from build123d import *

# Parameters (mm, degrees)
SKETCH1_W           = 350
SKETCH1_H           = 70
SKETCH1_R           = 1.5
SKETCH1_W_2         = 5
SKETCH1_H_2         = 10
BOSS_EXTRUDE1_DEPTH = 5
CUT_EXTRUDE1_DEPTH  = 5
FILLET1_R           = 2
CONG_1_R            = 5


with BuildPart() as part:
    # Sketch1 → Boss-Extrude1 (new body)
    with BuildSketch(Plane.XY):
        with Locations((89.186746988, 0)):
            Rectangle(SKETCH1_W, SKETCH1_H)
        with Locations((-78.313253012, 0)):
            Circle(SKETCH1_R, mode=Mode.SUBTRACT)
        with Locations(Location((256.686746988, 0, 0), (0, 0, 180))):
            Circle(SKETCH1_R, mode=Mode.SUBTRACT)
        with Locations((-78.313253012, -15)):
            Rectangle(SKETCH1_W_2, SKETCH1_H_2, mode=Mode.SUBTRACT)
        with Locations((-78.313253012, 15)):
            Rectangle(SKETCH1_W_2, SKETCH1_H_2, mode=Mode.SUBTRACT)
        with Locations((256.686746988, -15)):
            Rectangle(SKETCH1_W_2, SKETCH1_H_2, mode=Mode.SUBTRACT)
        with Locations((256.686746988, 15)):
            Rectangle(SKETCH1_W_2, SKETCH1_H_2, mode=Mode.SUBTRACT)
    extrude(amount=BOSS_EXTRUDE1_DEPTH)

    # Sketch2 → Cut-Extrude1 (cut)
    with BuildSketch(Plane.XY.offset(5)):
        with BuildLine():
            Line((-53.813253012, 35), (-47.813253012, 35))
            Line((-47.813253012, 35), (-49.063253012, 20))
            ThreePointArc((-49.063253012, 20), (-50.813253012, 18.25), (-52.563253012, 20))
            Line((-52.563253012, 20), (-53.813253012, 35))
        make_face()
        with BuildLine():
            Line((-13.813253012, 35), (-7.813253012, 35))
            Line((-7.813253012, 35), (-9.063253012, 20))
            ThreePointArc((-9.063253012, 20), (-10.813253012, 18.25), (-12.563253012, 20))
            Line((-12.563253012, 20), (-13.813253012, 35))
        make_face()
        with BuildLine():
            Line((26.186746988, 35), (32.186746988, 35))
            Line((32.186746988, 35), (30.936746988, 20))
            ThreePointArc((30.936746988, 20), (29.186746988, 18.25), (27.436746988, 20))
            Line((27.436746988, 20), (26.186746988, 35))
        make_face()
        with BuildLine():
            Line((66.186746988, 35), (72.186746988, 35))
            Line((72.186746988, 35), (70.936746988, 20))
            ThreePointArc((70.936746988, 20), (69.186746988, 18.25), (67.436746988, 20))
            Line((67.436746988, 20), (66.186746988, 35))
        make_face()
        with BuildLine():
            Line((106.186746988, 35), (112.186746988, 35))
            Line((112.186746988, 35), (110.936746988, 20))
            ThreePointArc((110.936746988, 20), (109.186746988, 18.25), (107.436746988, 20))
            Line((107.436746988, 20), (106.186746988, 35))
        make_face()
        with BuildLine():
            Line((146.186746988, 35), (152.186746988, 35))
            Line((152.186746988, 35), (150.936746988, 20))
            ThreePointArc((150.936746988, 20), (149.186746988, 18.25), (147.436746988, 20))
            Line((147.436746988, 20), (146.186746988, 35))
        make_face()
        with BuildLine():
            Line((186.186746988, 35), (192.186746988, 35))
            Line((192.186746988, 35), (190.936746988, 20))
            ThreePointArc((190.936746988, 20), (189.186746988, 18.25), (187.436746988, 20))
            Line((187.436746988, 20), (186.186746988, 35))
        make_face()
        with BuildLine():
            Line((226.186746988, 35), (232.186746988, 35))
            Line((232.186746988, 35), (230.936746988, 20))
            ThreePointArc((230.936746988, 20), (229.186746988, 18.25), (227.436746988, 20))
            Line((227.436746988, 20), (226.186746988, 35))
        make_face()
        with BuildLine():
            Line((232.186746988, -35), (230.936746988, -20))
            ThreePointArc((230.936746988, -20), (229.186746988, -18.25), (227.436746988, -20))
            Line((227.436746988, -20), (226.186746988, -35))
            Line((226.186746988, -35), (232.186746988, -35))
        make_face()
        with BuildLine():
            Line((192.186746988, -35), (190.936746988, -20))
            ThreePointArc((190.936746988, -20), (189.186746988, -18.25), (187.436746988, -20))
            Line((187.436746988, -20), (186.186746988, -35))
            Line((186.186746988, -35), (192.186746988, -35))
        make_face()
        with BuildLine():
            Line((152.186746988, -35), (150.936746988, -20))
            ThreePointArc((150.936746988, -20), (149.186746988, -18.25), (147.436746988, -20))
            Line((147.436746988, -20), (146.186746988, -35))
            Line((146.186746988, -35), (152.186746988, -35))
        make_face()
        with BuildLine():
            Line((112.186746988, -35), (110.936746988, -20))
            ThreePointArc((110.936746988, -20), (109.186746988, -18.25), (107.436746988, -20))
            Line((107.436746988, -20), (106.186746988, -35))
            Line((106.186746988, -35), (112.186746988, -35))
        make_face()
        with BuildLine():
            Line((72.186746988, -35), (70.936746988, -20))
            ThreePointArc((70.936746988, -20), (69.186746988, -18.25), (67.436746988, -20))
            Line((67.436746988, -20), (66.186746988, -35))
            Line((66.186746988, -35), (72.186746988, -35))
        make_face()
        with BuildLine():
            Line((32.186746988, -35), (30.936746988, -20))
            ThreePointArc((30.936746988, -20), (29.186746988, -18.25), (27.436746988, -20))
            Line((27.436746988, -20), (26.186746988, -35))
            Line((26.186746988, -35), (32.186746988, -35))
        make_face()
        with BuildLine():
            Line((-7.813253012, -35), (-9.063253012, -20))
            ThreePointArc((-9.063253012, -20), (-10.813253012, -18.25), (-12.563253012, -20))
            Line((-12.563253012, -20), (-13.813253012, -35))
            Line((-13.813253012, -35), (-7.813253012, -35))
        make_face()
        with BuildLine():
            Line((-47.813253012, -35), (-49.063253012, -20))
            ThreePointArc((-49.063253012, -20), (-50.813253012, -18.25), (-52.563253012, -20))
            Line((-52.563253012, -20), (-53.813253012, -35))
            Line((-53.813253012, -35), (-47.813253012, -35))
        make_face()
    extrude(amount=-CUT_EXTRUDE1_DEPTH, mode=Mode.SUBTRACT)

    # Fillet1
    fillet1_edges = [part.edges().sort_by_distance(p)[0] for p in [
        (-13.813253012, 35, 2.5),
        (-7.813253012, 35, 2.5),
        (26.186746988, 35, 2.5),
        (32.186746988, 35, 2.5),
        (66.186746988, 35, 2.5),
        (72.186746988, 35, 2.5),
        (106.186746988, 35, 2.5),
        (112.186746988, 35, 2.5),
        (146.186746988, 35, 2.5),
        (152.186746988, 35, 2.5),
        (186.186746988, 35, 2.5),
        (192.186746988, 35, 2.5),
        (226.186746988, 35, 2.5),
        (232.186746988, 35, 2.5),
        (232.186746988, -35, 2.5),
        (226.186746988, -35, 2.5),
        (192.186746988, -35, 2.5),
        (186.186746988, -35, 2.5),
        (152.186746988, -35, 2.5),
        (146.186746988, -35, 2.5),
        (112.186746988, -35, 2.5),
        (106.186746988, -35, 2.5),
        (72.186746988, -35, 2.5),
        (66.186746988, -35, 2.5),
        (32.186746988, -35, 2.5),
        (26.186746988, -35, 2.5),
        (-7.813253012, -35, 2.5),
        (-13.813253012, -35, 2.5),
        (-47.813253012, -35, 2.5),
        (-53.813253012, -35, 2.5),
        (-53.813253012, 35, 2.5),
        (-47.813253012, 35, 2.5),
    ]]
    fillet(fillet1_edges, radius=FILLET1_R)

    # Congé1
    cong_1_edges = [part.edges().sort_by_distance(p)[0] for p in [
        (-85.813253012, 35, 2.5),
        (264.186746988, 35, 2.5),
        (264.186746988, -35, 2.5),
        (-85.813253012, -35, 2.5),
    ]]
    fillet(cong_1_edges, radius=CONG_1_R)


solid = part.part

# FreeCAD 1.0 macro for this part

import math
import FreeCAD as App
import Part
import Sketcher

V = App.Vector
Q = App.Units.Quantity


def edges_at(feature, points):
    """Names of the edges that pass closest to the given points."""
    edges = feature.Shape.Edges
    near = lambda p: min(range(len(edges)), key=lambda i: edges[i].distToShape(Part.Vertex(*p))[0])
    return sorted({f"Edge{near(p) + 1}" for p in points})

doc = App.newDocument("Part")
body = doc.addObject("PartDesign::Body", "Body")

# Sketch on XY plane
sketch1 = body.newObject("Sketcher::SketchObject", "Sketch")
sketch1.AttachmentSupport = (doc.getObject("XY_Plane"), [""])
sketch1.MapMode = "FlatFace"
sketch1.addGeometry([
    Part.LineSegment(V(-85.8, 35, 0), V(-85.8, -35, 0)),  # 0
    Part.LineSegment(V(-85.8, -35, 0), V(264.2, -35, 0)),  # 1
    Part.LineSegment(V(264.2, -35, 0), V(264.2, 35, 0)),  # 2
    Part.LineSegment(V(264.2, 35, 0), V(-85.8, 35, 0)),  # 3
    Part.LineSegment(V(-75.8, -20, 0), V(-80.8, -20, 0)),  # 4
    Part.LineSegment(V(-80.8, -20, 0), V(-80.8, -10, 0)),  # 5
    Part.LineSegment(V(-80.8, -10, 0), V(-75.8, -10, 0)),  # 6
    Part.LineSegment(V(-75.8, -10, 0), V(-75.8, -20, 0)),  # 7
    Part.LineSegment(V(259.2, -20, 0), V(254.2, -20, 0)),  # 8
    Part.LineSegment(V(254.2, -20, 0), V(254.2, -10, 0)),  # 9
    Part.LineSegment(V(254.2, -10, 0), V(259.2, -10, 0)),  # 10
    Part.LineSegment(V(259.2, -10, 0), V(259.2, -20, 0)),  # 11
    Part.Circle(V(-78.3, 0, 0), V(0, 0, 1), 1.5),  # 12
    Part.LineSegment(V(-75.8, 10, 0), V(-80.8, 10, 0)),  # 13
    Part.LineSegment(V(-80.8, 10, 0), V(-80.8, 20, 0)),  # 14
    Part.LineSegment(V(-80.8, 20, 0), V(-75.8, 20, 0)),  # 15
    Part.LineSegment(V(-75.8, 20, 0), V(-75.8, 10, 0)),  # 16
    Part.Circle(V(256.7, 0, 0), V(0, 0, 1), 1.5),  # 17
    Part.LineSegment(V(259.2, 10, 0), V(254.2, 10, 0)),  # 18
    Part.LineSegment(V(254.2, 10, 0), V(254.2, 20, 0)),  # 19
    Part.LineSegment(V(254.2, 20, 0), V(259.2, 20, 0)),  # 20
    Part.LineSegment(V(259.2, 20, 0), V(259.2, 10, 0)),  # 21
], False)
sketch1.addConstraint([
    Sketcher.Constraint("Coincident", 0, 2, 1, 1),
    Sketcher.Constraint("Coincident", 1, 2, 2, 1),
    Sketcher.Constraint("Coincident", 2, 2, 3, 1),
    Sketcher.Constraint("Coincident", 3, 2, 0, 1),
    Sketcher.Constraint("Coincident", 4, 2, 5, 1),
    Sketcher.Constraint("Coincident", 5, 2, 6, 1),
    Sketcher.Constraint("Coincident", 6, 2, 7, 1),
    Sketcher.Constraint("Coincident", 7, 2, 4, 1),
    Sketcher.Constraint("Coincident", 8, 2, 9, 1),
    Sketcher.Constraint("Coincident", 9, 2, 10, 1),
    Sketcher.Constraint("Coincident", 10, 2, 11, 1),
    Sketcher.Constraint("Coincident", 11, 2, 8, 1),
    Sketcher.Constraint("Coincident", 13, 2, 14, 1),
    Sketcher.Constraint("Coincident", 14, 2, 15, 1),
    Sketcher.Constraint("Coincident", 15, 2, 16, 1),
    Sketcher.Constraint("Coincident", 16, 2, 13, 1),
    Sketcher.Constraint("Coincident", 18, 2, 19, 1),
    Sketcher.Constraint("Coincident", 19, 2, 20, 1),
    Sketcher.Constraint("Coincident", 20, 2, 21, 1),
    Sketcher.Constraint("Coincident", 21, 2, 18, 1),
    Sketcher.Constraint("Vertical", 0),
    Sketcher.Constraint("Horizontal", 1),
    Sketcher.Constraint("Vertical", 2),
    Sketcher.Constraint("Horizontal", 3),
    Sketcher.Constraint("Horizontal", 4),
    Sketcher.Constraint("Vertical", 5),
    Sketcher.Constraint("Horizontal", 6),
    Sketcher.Constraint("Vertical", 7),
    Sketcher.Constraint("Horizontal", 8),
    Sketcher.Constraint("Vertical", 9),
    Sketcher.Constraint("Horizontal", 10),
    Sketcher.Constraint("Vertical", 11),
    Sketcher.Constraint("Horizontal", 13),
    Sketcher.Constraint("Vertical", 14),
    Sketcher.Constraint("Horizontal", 15),
    Sketcher.Constraint("Vertical", 16),
    Sketcher.Constraint("Horizontal", 18),
    Sketcher.Constraint("Vertical", 19),
    Sketcher.Constraint("Horizontal", 20),
    Sketcher.Constraint("Vertical", 21),
    Sketcher.Constraint("Equal", 12, 17),
    Sketcher.Constraint("Symmetric", 5, 2, 13, 2, -1),
    Sketcher.Constraint("Symmetric", 7, 2, 15, 2, -1),
    Sketcher.Constraint("Symmetric", 9, 2, 18, 2, -1),
    Sketcher.Constraint("Symmetric", 11, 2, 20, 2, -1),
    Sketcher.Constraint("PointOnObject", 12, 3, -1),
    Sketcher.Constraint("PointOnObject", 17, 3, -1),
    Sketcher.Constraint("Horizontal", 7, 2, 8, 2),
    Sketcher.Constraint("Horizontal", 6, 2, 9, 2),
    Sketcher.Constraint("Equal", 6, 8),
    Sketcher.Constraint("Diameter", 12, Q("3 mm")),
    Sketcher.Constraint("DistanceX", 1, 1, 1, 2, Q("350 mm")),
    Sketcher.Constraint("DistanceX", 4, 2, 4, 1, Q("5 mm")),
    Sketcher.Constraint("DistanceY", 0, 2, 0, 1, Q("70 mm")),
    Sketcher.Constraint("DistanceY", 5, 1, 5, 2, Q("10 mm")),
    Sketcher.Constraint("DistanceY", 0, 2, -1, 1, Q("35 mm")),
    Sketcher.Constraint("DistanceY", 4, 2, -1, 1, Q("20 mm")),
    Sketcher.Constraint("DistanceX", 12, 3, 17, 3, Q("335 mm")),
    Sketcher.Constraint("DistanceX", 0, 2, 4, 2, Q("5 mm")),
    Sketcher.Constraint("DistanceX", 8, 2, 1, 2, Q("10 mm")),
    Sketcher.Constraint("DistanceX", 0, 2, 12, 3, Q("7.5 mm")),
    Sketcher.Constraint("DistanceX", 12, 3, -1, 1, Q("78.313253 mm")),
])
pad1 = body.newObject("PartDesign::Pad", "Pad")
pad1.Profile = sketch1
pad1.Length = 5

# Sketch on XY plane
sketch2 = body.newObject("Sketcher::SketchObject", "Sketch001")
sketch2.AttachmentSupport = (doc.getObject("XY_Plane"), [""])
sketch2.MapMode = "FlatFace"
sketch2.AttachmentOffset = App.Placement(V(0, 0, 5), App.Rotation())
sketch2.addGeometry([
    Part.LineSegment(V(-47.8, 35, 0), V(-53.8, 35, 0)),  # 0
    Part.LineSegment(V(-53.8, 35, 0), V(-52.6, 20, 0)),  # 1
    Part.ArcOfCircle(Part.Circle(V(-50.8, 20, 0), V(0, 0, 1), 1.8), math.radians(180), math.radians(360)),  # 2
    Part.LineSegment(V(-49.1, 20, 0), V(-47.8, 35, 0)),  # 3
    Part.LineSegment(V(-7.8, 35, 0), V(-13.8, 35, 0)),  # 4
    Part.LineSegment(V(-13.8, 35, 0), V(-12.6, 20, 0)),  # 5
    Part.ArcOfCircle(Part.Circle(V(-10.8, 20, 0), V(0, 0, 1), 1.8), math.radians(180), math.radians(360)),  # 6
    Part.LineSegment(V(-9.1, 20, 0), V(-7.8, 35, 0)),  # 7
    Part.LineSegment(V(32.2, 35, 0), V(26.2, 35, 0)),  # 8
    Part.LineSegment(V(26.2, 35, 0), V(27.4, 20, 0)),  # 9
    Part.ArcOfCircle(Part.Circle(V(29.2, 20, 0), V(0, 0, 1), 1.8), math.radians(180), math.radians(360)),  # 10
    Part.LineSegment(V(30.9, 20, 0), V(32.2, 35, 0)),  # 11
    Part.LineSegment(V(72.2, 35, 0), V(66.2, 35, 0)),  # 12
    Part.LineSegment(V(66.2, 35, 0), V(67.4, 20, 0)),  # 13
    Part.ArcOfCircle(Part.Circle(V(69.2, 20, 0), V(0, 0, 1), 1.8), math.radians(180), math.radians(360)),  # 14
    Part.LineSegment(V(70.9, 20, 0), V(72.2, 35, 0)),  # 15
    Part.LineSegment(V(112.2, 35, 0), V(106.2, 35, 0)),  # 16
    Part.LineSegment(V(106.2, 35, 0), V(107.4, 20, 0)),  # 17
    Part.ArcOfCircle(Part.Circle(V(109.2, 20, 0), V(0, 0, 1), 1.8), math.radians(180), math.radians(360)),  # 18
    Part.LineSegment(V(110.9, 20, 0), V(112.2, 35, 0)),  # 19
    Part.LineSegment(V(152.2, 35, 0), V(146.2, 35, 0)),  # 20
    Part.LineSegment(V(146.2, 35, 0), V(147.4, 20, 0)),  # 21
    Part.ArcOfCircle(Part.Circle(V(149.2, 20, 0), V(0, 0, 1), 1.8), math.radians(180), math.radians(360)),  # 22
    Part.LineSegment(V(150.9, 20, 0), V(152.2, 35, 0)),  # 23
    Part.LineSegment(V(192.2, 35, 0), V(186.2, 35, 0)),  # 24
    Part.LineSegment(V(186.2, 35, 0), V(187.4, 20, 0)),  # 25
    Part.ArcOfCircle(Part.Circle(V(189.2, 20, 0), V(0, 0, 1), 1.8), math.radians(180), math.radians(360)),  # 26
    Part.LineSegment(V(190.9, 20, 0), V(192.2, 35, 0)),  # 27
    Part.LineSegment(V(232.2, 35, 0), V(226.2, 35, 0)),  # 28
    Part.LineSegment(V(226.2, 35, 0), V(227.4, 20, 0)),  # 29
    Part.ArcOfCircle(Part.Circle(V(229.2, 20, 0), V(0, 0, 1), 1.8), math.radians(180), math.radians(360)),  # 30
    Part.LineSegment(V(230.9, 20, 0), V(232.2, 35, 0)),  # 31
    Part.LineSegment(V(232.2, -35, 0), V(230.9, -20, 0)),  # 32
    Part.ArcOfCircle(Part.Circle(V(229.2, -20, 0), V(0, 0, 1), 1.8), math.radians(0), math.radians(180)),  # 33
    Part.LineSegment(V(227.4, -20, 0), V(226.2, -35, 0)),  # 34
    Part.LineSegment(V(226.2, -35, 0), V(232.2, -35, 0)),  # 35
    Part.LineSegment(V(192.2, -35, 0), V(190.9, -20, 0)),  # 36
    Part.ArcOfCircle(Part.Circle(V(189.2, -20, 0), V(0, 0, 1), 1.8), math.radians(0), math.radians(180)),  # 37
    Part.LineSegment(V(187.4, -20, 0), V(186.2, -35, 0)),  # 38
    Part.LineSegment(V(186.2, -35, 0), V(192.2, -35, 0)),  # 39
    Part.LineSegment(V(152.2, -35, 0), V(150.9, -20, 0)),  # 40
    Part.ArcOfCircle(Part.Circle(V(149.2, -20, 0), V(0, 0, 1), 1.8), math.radians(0), math.radians(180)),  # 41
    Part.LineSegment(V(147.4, -20, 0), V(146.2, -35, 0)),  # 42
    Part.LineSegment(V(146.2, -35, 0), V(152.2, -35, 0)),  # 43
    Part.LineSegment(V(112.2, -35, 0), V(110.9, -20, 0)),  # 44
    Part.ArcOfCircle(Part.Circle(V(109.2, -20, 0), V(0, 0, 1), 1.8), math.radians(0), math.radians(180)),  # 45
    Part.LineSegment(V(107.4, -20, 0), V(106.2, -35, 0)),  # 46
    Part.LineSegment(V(106.2, -35, 0), V(112.2, -35, 0)),  # 47
    Part.LineSegment(V(72.2, -35, 0), V(70.9, -20, 0)),  # 48
    Part.ArcOfCircle(Part.Circle(V(69.2, -20, 0), V(0, 0, 1), 1.8), math.radians(0), math.radians(180)),  # 49
    Part.LineSegment(V(67.4, -20, 0), V(66.2, -35, 0)),  # 50
    Part.LineSegment(V(66.2, -35, 0), V(72.2, -35, 0)),  # 51
    Part.LineSegment(V(32.2, -35, 0), V(30.9, -20, 0)),  # 52
    Part.ArcOfCircle(Part.Circle(V(29.2, -20, 0), V(0, 0, 1), 1.8), math.radians(0), math.radians(180)),  # 53
    Part.LineSegment(V(27.4, -20, 0), V(26.2, -35, 0)),  # 54
    Part.LineSegment(V(26.2, -35, 0), V(32.2, -35, 0)),  # 55
    Part.LineSegment(V(-7.8, -35, 0), V(-9.1, -20, 0)),  # 56
    Part.ArcOfCircle(Part.Circle(V(-10.8, -20, 0), V(0, 0, 1), 1.8), math.radians(0), math.radians(180)),  # 57
    Part.LineSegment(V(-12.6, -20, 0), V(-13.8, -35, 0)),  # 58
    Part.LineSegment(V(-13.8, -35, 0), V(-7.8, -35, 0)),  # 59
    Part.LineSegment(V(-47.8, -35, 0), V(-49.1, -20, 0)),  # 60
    Part.ArcOfCircle(Part.Circle(V(-50.8, -20, 0), V(0, 0, 1), 1.8), math.radians(0), math.radians(180)),  # 61
    Part.LineSegment(V(-52.6, -20, 0), V(-53.8, -35, 0)),  # 62
    Part.LineSegment(V(-53.8, -35, 0), V(-47.8, -35, 0)),  # 63
], False)
sketch2.addConstraint([
    Sketcher.Constraint("Coincident", 0, 2, 1, 1),
    Sketcher.Constraint("Coincident", 1, 2, 2, 1),
    Sketcher.Constraint("Coincident", 2, 2, 3, 1),
    Sketcher.Constraint("Coincident", 3, 2, 0, 1),
    Sketcher.Constraint("Coincident", 4, 2, 5, 1),
    Sketcher.Constraint("Coincident", 5, 2, 6, 1),
    Sketcher.Constraint("Coincident", 6, 2, 7, 1),
    Sketcher.Constraint("Coincident", 7, 2, 4, 1),
    Sketcher.Constraint("Coincident", 8, 2, 9, 1),
    Sketcher.Constraint("Coincident", 9, 2, 10, 1),
    Sketcher.Constraint("Coincident", 10, 2, 11, 1),
    Sketcher.Constraint("Coincident", 11, 2, 8, 1),
    Sketcher.Constraint("Coincident", 12, 2, 13, 1),
    Sketcher.Constraint("Coincident", 13, 2, 14, 1),
    Sketcher.Constraint("Coincident", 14, 2, 15, 1),
    Sketcher.Constraint("Coincident", 15, 2, 12, 1),
    Sketcher.Constraint("Coincident", 16, 2, 17, 1),
    Sketcher.Constraint("Coincident", 17, 2, 18, 1),
    Sketcher.Constraint("Coincident", 18, 2, 19, 1),
    Sketcher.Constraint("Coincident", 19, 2, 16, 1),
    Sketcher.Constraint("Coincident", 20, 2, 21, 1),
    Sketcher.Constraint("Coincident", 21, 2, 22, 1),
    Sketcher.Constraint("Coincident", 22, 2, 23, 1),
    Sketcher.Constraint("Coincident", 23, 2, 20, 1),
    Sketcher.Constraint("Coincident", 24, 2, 25, 1),
    Sketcher.Constraint("Coincident", 25, 2, 26, 1),
    Sketcher.Constraint("Coincident", 26, 2, 27, 1),
    Sketcher.Constraint("Coincident", 27, 2, 24, 1),
    Sketcher.Constraint("Coincident", 28, 2, 29, 1),
    Sketcher.Constraint("Coincident", 29, 2, 30, 1),
    Sketcher.Constraint("Coincident", 30, 2, 31, 1),
    Sketcher.Constraint("Coincident", 31, 2, 28, 1),
    Sketcher.Constraint("Coincident", 32, 2, 33, 1),
    Sketcher.Constraint("Coincident", 33, 2, 34, 1),
    Sketcher.Constraint("Coincident", 34, 2, 35, 1),
    Sketcher.Constraint("Coincident", 35, 2, 32, 1),
    Sketcher.Constraint("Coincident", 36, 2, 37, 1),
    Sketcher.Constraint("Coincident", 37, 2, 38, 1),
    Sketcher.Constraint("Coincident", 38, 2, 39, 1),
    Sketcher.Constraint("Coincident", 39, 2, 36, 1),
    Sketcher.Constraint("Coincident", 40, 2, 41, 1),
    Sketcher.Constraint("Coincident", 41, 2, 42, 1),
    Sketcher.Constraint("Coincident", 42, 2, 43, 1),
    Sketcher.Constraint("Coincident", 43, 2, 40, 1),
    Sketcher.Constraint("Coincident", 44, 2, 45, 1),
    Sketcher.Constraint("Coincident", 45, 2, 46, 1),
    Sketcher.Constraint("Coincident", 46, 2, 47, 1),
    Sketcher.Constraint("Coincident", 47, 2, 44, 1),
    Sketcher.Constraint("Coincident", 48, 2, 49, 1),
    Sketcher.Constraint("Coincident", 49, 2, 50, 1),
    Sketcher.Constraint("Coincident", 50, 2, 51, 1),
    Sketcher.Constraint("Coincident", 51, 2, 48, 1),
    Sketcher.Constraint("Coincident", 52, 2, 53, 1),
    Sketcher.Constraint("Coincident", 53, 2, 54, 1),
    Sketcher.Constraint("Coincident", 54, 2, 55, 1),
    Sketcher.Constraint("Coincident", 55, 2, 52, 1),
    Sketcher.Constraint("Coincident", 56, 2, 57, 1),
    Sketcher.Constraint("Coincident", 57, 2, 58, 1),
    Sketcher.Constraint("Coincident", 58, 2, 59, 1),
    Sketcher.Constraint("Coincident", 59, 2, 56, 1),
    Sketcher.Constraint("Coincident", 60, 2, 61, 1),
    Sketcher.Constraint("Coincident", 61, 2, 62, 1),
    Sketcher.Constraint("Coincident", 62, 2, 63, 1),
    Sketcher.Constraint("Coincident", 63, 2, 60, 1),
    Sketcher.Constraint("Horizontal", 0),
    Sketcher.Constraint("Horizontal", 4),
    Sketcher.Constraint("Horizontal", 8),
    Sketcher.Constraint("Horizontal", 12),
    Sketcher.Constraint("Horizontal", 16),
    Sketcher.Constraint("Horizontal", 20),
    Sketcher.Constraint("Horizontal", 24),
    Sketcher.Constraint("Horizontal", 28),
    Sketcher.Constraint("Horizontal", 35),
    Sketcher.Constraint("Horizontal", 39),
    Sketcher.Constraint("Horizontal", 43),
    Sketcher.Constraint("Horizontal", 47),
    Sketcher.Constraint("Horizontal", 51),
    Sketcher.Constraint("Horizontal", 55),
    Sketcher.Constraint("Horizontal", 59),
    Sketcher.Constraint("Horizontal", 63),
    Sketcher.Constraint("Equal", 2, 6),
    Sketcher.Constraint("Equal", 6, 10),
    Sketcher.Constraint("Equal", 10, 14),
    Sketcher.Constraint("Equal", 14, 18),
    Sketcher.Constraint("Equal", 18, 22),
    Sketcher.Constraint("Equal", 22, 26),
    Sketcher.Constraint("Equal", 26, 30),
    Sketcher.Constraint("Equal", 30, 33),
    Sketcher.Constraint("Equal", 33, 37),
    Sketcher.Constraint("Equal", 37, 41),
    Sketcher.Constraint("Equal", 41, 45),
    Sketcher.Constraint("Equal", 45, 49),
    Sketcher.Constraint("Equal", 49, 53),
    Sketcher.Constraint("Equal", 53, 57),
    Sketcher.Constraint("Equal", 57, 61),
    Sketcher.Constraint("Symmetric", 30, 3, 33, 3, -1),
    Sketcher.Constraint("Symmetric", 26, 3, 37, 3, -1),
    Sketcher.Constraint("Symmetric", 22, 3, 41, 3, -1),
    Sketcher.Constraint("Symmetric", 18, 3, 45, 3, -1),
    Sketcher.Constraint("Symmetric", 14, 3, 49, 3, -1),
    Sketcher.Constraint("Symmetric", 10, 3, 53, 3, -1),
    Sketcher.Constraint("Symmetric", 6, 3, 57, 3, -1),
    Sketcher.Constraint("Symmetric", 2, 3, 61, 3, -1),
    Sketcher.Constraint("Symmetric", 28, 2, 34, 2, -1),
    Sketcher.Constraint("Symmetric", 24, 2, 38, 2, -1),
    Sketcher.Constraint("Symmetric", 20, 2, 42, 2, -1),
    Sketcher.Constraint("Symmetric", 16, 2, 46, 2, -1),
    Sketcher.Constraint("Symmetric", 12, 2, 50, 2, -1),
    Sketcher.Constraint("Symmetric", 8, 2, 54, 2, -1),
    Sketcher.Constraint("Symmetric", 4, 2, 58, 2, -1),
    Sketcher.Constraint("Symmetric", 0, 2, 62, 2, -1),
    Sketcher.Constraint("Parallel", 1, 5),
    Sketcher.Constraint("Parallel", 3, 7),
    Sketcher.Constraint("Parallel", 5, 9),
    Sketcher.Constraint("Parallel", 7, 11),
    Sketcher.Constraint("Parallel", 9, 13),
    Sketcher.Constraint("Parallel", 11, 15),
    Sketcher.Constraint("Parallel", 13, 17),
    Sketcher.Constraint("Parallel", 15, 19),
    Sketcher.Constraint("Parallel", 17, 21),
    Sketcher.Constraint("Parallel", 19, 23),
    Sketcher.Constraint("Parallel", 21, 25),
    Sketcher.Constraint("Parallel", 23, 27),
    Sketcher.Constraint("Parallel", 25, 29),
    Sketcher.Constraint("Parallel", 27, 31),
    Sketcher.Constraint("Parallel", 29, 32),
    Sketcher.Constraint("Parallel", 31, 34),
    Sketcher.Constraint("Parallel", 32, 36),
    Sketcher.Constraint("Parallel", 34, 38),
    Sketcher.Constraint("Parallel", 36, 40),
    Sketcher.Constraint("Parallel", 38, 42),
    Sketcher.Constraint("Parallel", 40, 44),
    Sketcher.Constraint("Parallel", 42, 46),
    Sketcher.Constraint("Parallel", 44, 48),
    Sketcher.Constraint("Parallel", 46, 50),
    Sketcher.Constraint("Parallel", 48, 52),
    Sketcher.Constraint("Parallel", 50, 54),
    Sketcher.Constraint("Parallel", 52, 56),
    Sketcher.Constraint("Parallel", 54, 58),
    Sketcher.Constraint("Parallel", 56, 60),
    Sketcher.Constraint("Parallel", 58, 62),
    Sketcher.Constraint("Horizontal", 2, 3, 6, 3),
    Sketcher.Constraint("Horizontal", 6, 3, 10, 3),
    Sketcher.Constraint("Horizontal", 10, 3, 14, 3),
    Sketcher.Constraint("Horizontal", 14, 3, 18, 3),
    Sketcher.Constraint("Horizontal", 18, 3, 22, 3),
    Sketcher.Constraint("Horizontal", 22, 3, 26, 3),
    Sketcher.Constraint("Horizontal", 26, 3, 30, 3),
    Sketcher.Constraint("Horizontal", 30, 3, 1, 2),
    Sketcher.Constraint("Horizontal", 1, 2, 2, 2),
    Sketcher.Constraint("Horizontal", 3, 2, 4, 2),
    Sketcher.Constraint("Horizontal", 2, 2, 5, 2),
    Sketcher.Constraint("Horizontal", 5, 2, 6, 2),
    Sketcher.Constraint("Horizontal", 7, 2, 8, 2),
    Sketcher.Constraint("Horizontal", 6, 2, 9, 2),
    Sketcher.Constraint("Horizontal", 9, 2, 10, 2),
    Sketcher.Constraint("Horizontal", 11, 2, 12, 2),
    Sketcher.Constraint("Horizontal", 10, 2, 13, 2),
    Sketcher.Constraint("Horizontal", 13, 2, 14, 2),
    Sketcher.Constraint("Horizontal", 15, 2, 16, 2),
    Sketcher.Constraint("Horizontal", 14, 2, 17, 2),
    Sketcher.Constraint("Horizontal", 17, 2, 18, 2),
    Sketcher.Constraint("Horizontal", 19, 2, 20, 2),
    Sketcher.Constraint("Horizontal", 18, 2, 21, 2),
    Sketcher.Constraint("Horizontal", 21, 2, 22, 2),
    Sketcher.Constraint("Horizontal", 23, 2, 24, 2),
    Sketcher.Constraint("Horizontal", 22, 2, 25, 2),
    Sketcher.Constraint("Horizontal", 25, 2, 26, 2),
    Sketcher.Constraint("Horizontal", 27, 2, 28, 2),
    Sketcher.Constraint("Horizontal", 26, 2, 29, 2),
    Sketcher.Constraint("Horizontal", 29, 2, 30, 2),
    Sketcher.Constraint("Horizontal", 61, 3, 32, 2),
    Sketcher.Constraint("Horizontal", 32, 2, 33, 2),
    Sketcher.Constraint("Horizontal", 33, 2, 36, 2),
    Sketcher.Constraint("Horizontal", 37, 2, 40, 2),
    Sketcher.Constraint("Horizontal", 41, 2, 44, 2),
    Sketcher.Constraint("Horizontal", 45, 2, 48, 2),
    Sketcher.Constraint("Horizontal", 49, 2, 52, 2),
    Sketcher.Constraint("Horizontal", 53, 2, 56, 2),
    Sketcher.Constraint("Horizontal", 57, 2, 60, 2),
    Sketcher.Constraint("DistanceX", 0, 2, 0, 1, Q("6 mm")),
    Sketcher.Constraint("Radius", 2, Q("1.75 mm")),
    Sketcher.Constraint("DistanceY", -1, 1, 2, 3, Q("20 mm")),
    Sketcher.Constraint("DistanceY", -1, 1, 0, 2, Q("35 mm")),
    Sketcher.Constraint("DistanceX", 2, 3, -1, 1, Q("50.813253 mm")),
    Sketcher.Constraint("DistanceX", 6, 3, -1, 1, Q("10.813253 mm")),
    Sketcher.Constraint("DistanceX", -1, 1, 10, 3, Q("29.186747 mm")),
    Sketcher.Constraint("DistanceX", -1, 1, 14, 3, Q("69.186747 mm")),
    Sketcher.Constraint("DistanceX", -1, 1, 18, 3, Q("109.186747 mm")),
    Sketcher.Constraint("DistanceX", -1, 1, 22, 3, Q("149.186747 mm")),
    Sketcher.Constraint("DistanceX", -1, 1, 26, 3, Q("189.186747 mm")),
    Sketcher.Constraint("DistanceX", -1, 1, 30, 3, Q("229.186747 mm")),
])
pocket1 = body.newObject("PartDesign::Pocket", "Pocket")
pocket1.Profile = sketch2
pocket1.Length = 5
doc.recompute()

fillet = body.newObject("PartDesign::Fillet", "Fillet")
fillet.Base = (pocket1, edges_at(pocket1, [
    (-13.813, 35, 2.5),
    (-7.813, 35, 2.5),
    (26.187, 35, 2.5),
    (32.187, 35, 2.5),
    (66.187, 35, 2.5),
    (72.187, 35, 2.5),
    (106.187, 35, 2.5),
    (112.187, 35, 2.5),
    (146.187, 35, 2.5),
    (152.187, 35, 2.5),
    (186.187, 35, 2.5),
    (192.187, 35, 2.5),
    (226.187, 35, 2.5),
    (232.187, 35, 2.5),
    (232.187, -35, 2.5),
    (226.187, -35, 2.5),
    (192.187, -35, 2.5),
    (186.187, -35, 2.5),
    (152.187, -35, 2.5),
    (146.187, -35, 2.5),
    (112.187, -35, 2.5),
    (106.187, -35, 2.5),
    (72.187, -35, 2.5),
    (66.187, -35, 2.5),
    (32.187, -35, 2.5),
    (26.187, -35, 2.5),
    (-7.813, -35, 2.5),
    (-13.813, -35, 2.5),
    (-47.813, -35, 2.5),
    (-53.813, -35, 2.5),
    (-53.813, 35, 2.5),
    (-47.813, 35, 2.5),
]))
fillet.Radius = 2
doc.recompute()

fillet2 = body.newObject("PartDesign::Fillet", "Fillet001")
fillet2.Base = (fillet, edges_at(fillet, [
    (-85.813, 35, 2.5),
    (264.187, 35, 2.5),
    (264.187, -35, 2.5),
    (-85.813, -35, 2.5),
]))
fillet2.Radius = 5

doc.recompute()
